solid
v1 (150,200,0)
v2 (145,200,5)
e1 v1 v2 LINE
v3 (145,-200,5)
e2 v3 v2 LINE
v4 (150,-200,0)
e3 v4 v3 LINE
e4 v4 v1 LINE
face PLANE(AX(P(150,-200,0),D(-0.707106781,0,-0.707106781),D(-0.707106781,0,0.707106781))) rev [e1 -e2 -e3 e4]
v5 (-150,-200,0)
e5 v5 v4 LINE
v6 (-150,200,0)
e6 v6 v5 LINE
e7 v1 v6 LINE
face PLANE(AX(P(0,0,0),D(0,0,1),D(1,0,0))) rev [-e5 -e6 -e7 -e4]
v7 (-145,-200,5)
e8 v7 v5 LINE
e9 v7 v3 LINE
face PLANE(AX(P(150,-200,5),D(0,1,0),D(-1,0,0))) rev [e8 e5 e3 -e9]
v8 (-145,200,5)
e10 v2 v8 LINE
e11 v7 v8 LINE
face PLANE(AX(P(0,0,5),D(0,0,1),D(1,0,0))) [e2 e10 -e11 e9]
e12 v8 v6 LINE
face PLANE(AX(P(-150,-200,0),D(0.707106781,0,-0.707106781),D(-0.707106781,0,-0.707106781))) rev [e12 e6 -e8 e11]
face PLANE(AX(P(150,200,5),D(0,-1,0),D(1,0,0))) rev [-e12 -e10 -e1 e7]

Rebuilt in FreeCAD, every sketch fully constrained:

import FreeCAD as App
import Part
import Sketcher
from FreeCAD import Vector


def add_polygon(sketch, points):
    """Adds a closed chain of lines whose ends are joined by coincident constraints."""
    first, n = sketch.GeometryCount, len(points)
    for a, b in zip(points, points[1:] + points[:1]):
        sketch.addGeometry(Part.LineSegment(App.Vector(*a, 0), App.Vector(*b, 0)), False)
    for i in range(n):
        sketch.addConstraint(Sketcher.Constraint("Coincident", first + i, 2, first + (i + 1) % n, 1))

doc = App.newDocument("Part")
body = doc.addObject("PartDesign::Body", "Body")

# Sketch on XY plane
sketch1 = body.newObject("Sketcher::SketchObject", "Sketch")
sketch1.AttachmentSupport = (doc.getObject("XY_Plane"), [""])
sketch1.MapMode = "FlatFace"
add_polygon(sketch1, [(-150, 200), (-150, -200), (150, -200), (150, 200)])  # lines 0-3
sketch1.addConstraint([
    Sketcher.Constraint("Vertical", 0),
    Sketcher.Constraint("Horizontal", 1),
    Sketcher.Constraint("Vertical", 2),
    Sketcher.Constraint("Horizontal", 3),
    Sketcher.Constraint("Symmetric", 0, 2, 2, 2, -1, 1),
    Sketcher.Constraint("DistanceX", 1, 1, 1, 2, 300.0),
    Sketcher.Constraint("DistanceY", 0, 2, 0, 1, 400.0),
])
pad1 = body.newObject("PartDesign::Pad", "Pad")
pad1.Profile = sketch1
pad1.Length = 5

# Sketch on XZ plane
sketch2 = body.newObject("Sketcher::SketchObject", "Sketch001")
sketch2.AttachmentSupport = (doc.getObject("XZ_Plane"), [""])
sketch2.MapMode = "FlatFace"
sketch2.AttachmentOffset = App.Placement(Vector(0, 0, -200), App.Rotation())
add_polygon(sketch2, [(-150, 0), (-150, 5), (-145, 5)])  # lines 0-2
add_polygon(sketch2, [(145, 5), (150, 5), (150, 0)])  # lines 3-5
sketch2.addConstraint([
    Sketcher.Constraint("Vertical", 0),
    Sketcher.Constraint("Horizontal", 1),
    Sketcher.Constraint("Horizontal", 3),
    Sketcher.Constraint("Vertical", 4),
    Sketcher.Constraint("Symmetric", 2, 2, 4, 2, -1, 1),
    Sketcher.Constraint("Symmetric", 1, 2, 5, 2, -2),
    Sketcher.Constraint("PointOnObject", 2, 2, -1),
    Sketcher.Constraint("Perpendicular", 2, 5),
    Sketcher.Constraint("DistanceX", 1, 1, 1, 2, 5.0),
    Sketcher.Constraint("DistanceX", 0, 2, -1, 1, 150.0),
])
pocket1 = body.newObject("PartDesign::Pocket", "Pocket")
pocket1.Profile = sketch2
pocket1.Type = "ThroughAll"
pocket1.Reversed = True

doc.recompute()
